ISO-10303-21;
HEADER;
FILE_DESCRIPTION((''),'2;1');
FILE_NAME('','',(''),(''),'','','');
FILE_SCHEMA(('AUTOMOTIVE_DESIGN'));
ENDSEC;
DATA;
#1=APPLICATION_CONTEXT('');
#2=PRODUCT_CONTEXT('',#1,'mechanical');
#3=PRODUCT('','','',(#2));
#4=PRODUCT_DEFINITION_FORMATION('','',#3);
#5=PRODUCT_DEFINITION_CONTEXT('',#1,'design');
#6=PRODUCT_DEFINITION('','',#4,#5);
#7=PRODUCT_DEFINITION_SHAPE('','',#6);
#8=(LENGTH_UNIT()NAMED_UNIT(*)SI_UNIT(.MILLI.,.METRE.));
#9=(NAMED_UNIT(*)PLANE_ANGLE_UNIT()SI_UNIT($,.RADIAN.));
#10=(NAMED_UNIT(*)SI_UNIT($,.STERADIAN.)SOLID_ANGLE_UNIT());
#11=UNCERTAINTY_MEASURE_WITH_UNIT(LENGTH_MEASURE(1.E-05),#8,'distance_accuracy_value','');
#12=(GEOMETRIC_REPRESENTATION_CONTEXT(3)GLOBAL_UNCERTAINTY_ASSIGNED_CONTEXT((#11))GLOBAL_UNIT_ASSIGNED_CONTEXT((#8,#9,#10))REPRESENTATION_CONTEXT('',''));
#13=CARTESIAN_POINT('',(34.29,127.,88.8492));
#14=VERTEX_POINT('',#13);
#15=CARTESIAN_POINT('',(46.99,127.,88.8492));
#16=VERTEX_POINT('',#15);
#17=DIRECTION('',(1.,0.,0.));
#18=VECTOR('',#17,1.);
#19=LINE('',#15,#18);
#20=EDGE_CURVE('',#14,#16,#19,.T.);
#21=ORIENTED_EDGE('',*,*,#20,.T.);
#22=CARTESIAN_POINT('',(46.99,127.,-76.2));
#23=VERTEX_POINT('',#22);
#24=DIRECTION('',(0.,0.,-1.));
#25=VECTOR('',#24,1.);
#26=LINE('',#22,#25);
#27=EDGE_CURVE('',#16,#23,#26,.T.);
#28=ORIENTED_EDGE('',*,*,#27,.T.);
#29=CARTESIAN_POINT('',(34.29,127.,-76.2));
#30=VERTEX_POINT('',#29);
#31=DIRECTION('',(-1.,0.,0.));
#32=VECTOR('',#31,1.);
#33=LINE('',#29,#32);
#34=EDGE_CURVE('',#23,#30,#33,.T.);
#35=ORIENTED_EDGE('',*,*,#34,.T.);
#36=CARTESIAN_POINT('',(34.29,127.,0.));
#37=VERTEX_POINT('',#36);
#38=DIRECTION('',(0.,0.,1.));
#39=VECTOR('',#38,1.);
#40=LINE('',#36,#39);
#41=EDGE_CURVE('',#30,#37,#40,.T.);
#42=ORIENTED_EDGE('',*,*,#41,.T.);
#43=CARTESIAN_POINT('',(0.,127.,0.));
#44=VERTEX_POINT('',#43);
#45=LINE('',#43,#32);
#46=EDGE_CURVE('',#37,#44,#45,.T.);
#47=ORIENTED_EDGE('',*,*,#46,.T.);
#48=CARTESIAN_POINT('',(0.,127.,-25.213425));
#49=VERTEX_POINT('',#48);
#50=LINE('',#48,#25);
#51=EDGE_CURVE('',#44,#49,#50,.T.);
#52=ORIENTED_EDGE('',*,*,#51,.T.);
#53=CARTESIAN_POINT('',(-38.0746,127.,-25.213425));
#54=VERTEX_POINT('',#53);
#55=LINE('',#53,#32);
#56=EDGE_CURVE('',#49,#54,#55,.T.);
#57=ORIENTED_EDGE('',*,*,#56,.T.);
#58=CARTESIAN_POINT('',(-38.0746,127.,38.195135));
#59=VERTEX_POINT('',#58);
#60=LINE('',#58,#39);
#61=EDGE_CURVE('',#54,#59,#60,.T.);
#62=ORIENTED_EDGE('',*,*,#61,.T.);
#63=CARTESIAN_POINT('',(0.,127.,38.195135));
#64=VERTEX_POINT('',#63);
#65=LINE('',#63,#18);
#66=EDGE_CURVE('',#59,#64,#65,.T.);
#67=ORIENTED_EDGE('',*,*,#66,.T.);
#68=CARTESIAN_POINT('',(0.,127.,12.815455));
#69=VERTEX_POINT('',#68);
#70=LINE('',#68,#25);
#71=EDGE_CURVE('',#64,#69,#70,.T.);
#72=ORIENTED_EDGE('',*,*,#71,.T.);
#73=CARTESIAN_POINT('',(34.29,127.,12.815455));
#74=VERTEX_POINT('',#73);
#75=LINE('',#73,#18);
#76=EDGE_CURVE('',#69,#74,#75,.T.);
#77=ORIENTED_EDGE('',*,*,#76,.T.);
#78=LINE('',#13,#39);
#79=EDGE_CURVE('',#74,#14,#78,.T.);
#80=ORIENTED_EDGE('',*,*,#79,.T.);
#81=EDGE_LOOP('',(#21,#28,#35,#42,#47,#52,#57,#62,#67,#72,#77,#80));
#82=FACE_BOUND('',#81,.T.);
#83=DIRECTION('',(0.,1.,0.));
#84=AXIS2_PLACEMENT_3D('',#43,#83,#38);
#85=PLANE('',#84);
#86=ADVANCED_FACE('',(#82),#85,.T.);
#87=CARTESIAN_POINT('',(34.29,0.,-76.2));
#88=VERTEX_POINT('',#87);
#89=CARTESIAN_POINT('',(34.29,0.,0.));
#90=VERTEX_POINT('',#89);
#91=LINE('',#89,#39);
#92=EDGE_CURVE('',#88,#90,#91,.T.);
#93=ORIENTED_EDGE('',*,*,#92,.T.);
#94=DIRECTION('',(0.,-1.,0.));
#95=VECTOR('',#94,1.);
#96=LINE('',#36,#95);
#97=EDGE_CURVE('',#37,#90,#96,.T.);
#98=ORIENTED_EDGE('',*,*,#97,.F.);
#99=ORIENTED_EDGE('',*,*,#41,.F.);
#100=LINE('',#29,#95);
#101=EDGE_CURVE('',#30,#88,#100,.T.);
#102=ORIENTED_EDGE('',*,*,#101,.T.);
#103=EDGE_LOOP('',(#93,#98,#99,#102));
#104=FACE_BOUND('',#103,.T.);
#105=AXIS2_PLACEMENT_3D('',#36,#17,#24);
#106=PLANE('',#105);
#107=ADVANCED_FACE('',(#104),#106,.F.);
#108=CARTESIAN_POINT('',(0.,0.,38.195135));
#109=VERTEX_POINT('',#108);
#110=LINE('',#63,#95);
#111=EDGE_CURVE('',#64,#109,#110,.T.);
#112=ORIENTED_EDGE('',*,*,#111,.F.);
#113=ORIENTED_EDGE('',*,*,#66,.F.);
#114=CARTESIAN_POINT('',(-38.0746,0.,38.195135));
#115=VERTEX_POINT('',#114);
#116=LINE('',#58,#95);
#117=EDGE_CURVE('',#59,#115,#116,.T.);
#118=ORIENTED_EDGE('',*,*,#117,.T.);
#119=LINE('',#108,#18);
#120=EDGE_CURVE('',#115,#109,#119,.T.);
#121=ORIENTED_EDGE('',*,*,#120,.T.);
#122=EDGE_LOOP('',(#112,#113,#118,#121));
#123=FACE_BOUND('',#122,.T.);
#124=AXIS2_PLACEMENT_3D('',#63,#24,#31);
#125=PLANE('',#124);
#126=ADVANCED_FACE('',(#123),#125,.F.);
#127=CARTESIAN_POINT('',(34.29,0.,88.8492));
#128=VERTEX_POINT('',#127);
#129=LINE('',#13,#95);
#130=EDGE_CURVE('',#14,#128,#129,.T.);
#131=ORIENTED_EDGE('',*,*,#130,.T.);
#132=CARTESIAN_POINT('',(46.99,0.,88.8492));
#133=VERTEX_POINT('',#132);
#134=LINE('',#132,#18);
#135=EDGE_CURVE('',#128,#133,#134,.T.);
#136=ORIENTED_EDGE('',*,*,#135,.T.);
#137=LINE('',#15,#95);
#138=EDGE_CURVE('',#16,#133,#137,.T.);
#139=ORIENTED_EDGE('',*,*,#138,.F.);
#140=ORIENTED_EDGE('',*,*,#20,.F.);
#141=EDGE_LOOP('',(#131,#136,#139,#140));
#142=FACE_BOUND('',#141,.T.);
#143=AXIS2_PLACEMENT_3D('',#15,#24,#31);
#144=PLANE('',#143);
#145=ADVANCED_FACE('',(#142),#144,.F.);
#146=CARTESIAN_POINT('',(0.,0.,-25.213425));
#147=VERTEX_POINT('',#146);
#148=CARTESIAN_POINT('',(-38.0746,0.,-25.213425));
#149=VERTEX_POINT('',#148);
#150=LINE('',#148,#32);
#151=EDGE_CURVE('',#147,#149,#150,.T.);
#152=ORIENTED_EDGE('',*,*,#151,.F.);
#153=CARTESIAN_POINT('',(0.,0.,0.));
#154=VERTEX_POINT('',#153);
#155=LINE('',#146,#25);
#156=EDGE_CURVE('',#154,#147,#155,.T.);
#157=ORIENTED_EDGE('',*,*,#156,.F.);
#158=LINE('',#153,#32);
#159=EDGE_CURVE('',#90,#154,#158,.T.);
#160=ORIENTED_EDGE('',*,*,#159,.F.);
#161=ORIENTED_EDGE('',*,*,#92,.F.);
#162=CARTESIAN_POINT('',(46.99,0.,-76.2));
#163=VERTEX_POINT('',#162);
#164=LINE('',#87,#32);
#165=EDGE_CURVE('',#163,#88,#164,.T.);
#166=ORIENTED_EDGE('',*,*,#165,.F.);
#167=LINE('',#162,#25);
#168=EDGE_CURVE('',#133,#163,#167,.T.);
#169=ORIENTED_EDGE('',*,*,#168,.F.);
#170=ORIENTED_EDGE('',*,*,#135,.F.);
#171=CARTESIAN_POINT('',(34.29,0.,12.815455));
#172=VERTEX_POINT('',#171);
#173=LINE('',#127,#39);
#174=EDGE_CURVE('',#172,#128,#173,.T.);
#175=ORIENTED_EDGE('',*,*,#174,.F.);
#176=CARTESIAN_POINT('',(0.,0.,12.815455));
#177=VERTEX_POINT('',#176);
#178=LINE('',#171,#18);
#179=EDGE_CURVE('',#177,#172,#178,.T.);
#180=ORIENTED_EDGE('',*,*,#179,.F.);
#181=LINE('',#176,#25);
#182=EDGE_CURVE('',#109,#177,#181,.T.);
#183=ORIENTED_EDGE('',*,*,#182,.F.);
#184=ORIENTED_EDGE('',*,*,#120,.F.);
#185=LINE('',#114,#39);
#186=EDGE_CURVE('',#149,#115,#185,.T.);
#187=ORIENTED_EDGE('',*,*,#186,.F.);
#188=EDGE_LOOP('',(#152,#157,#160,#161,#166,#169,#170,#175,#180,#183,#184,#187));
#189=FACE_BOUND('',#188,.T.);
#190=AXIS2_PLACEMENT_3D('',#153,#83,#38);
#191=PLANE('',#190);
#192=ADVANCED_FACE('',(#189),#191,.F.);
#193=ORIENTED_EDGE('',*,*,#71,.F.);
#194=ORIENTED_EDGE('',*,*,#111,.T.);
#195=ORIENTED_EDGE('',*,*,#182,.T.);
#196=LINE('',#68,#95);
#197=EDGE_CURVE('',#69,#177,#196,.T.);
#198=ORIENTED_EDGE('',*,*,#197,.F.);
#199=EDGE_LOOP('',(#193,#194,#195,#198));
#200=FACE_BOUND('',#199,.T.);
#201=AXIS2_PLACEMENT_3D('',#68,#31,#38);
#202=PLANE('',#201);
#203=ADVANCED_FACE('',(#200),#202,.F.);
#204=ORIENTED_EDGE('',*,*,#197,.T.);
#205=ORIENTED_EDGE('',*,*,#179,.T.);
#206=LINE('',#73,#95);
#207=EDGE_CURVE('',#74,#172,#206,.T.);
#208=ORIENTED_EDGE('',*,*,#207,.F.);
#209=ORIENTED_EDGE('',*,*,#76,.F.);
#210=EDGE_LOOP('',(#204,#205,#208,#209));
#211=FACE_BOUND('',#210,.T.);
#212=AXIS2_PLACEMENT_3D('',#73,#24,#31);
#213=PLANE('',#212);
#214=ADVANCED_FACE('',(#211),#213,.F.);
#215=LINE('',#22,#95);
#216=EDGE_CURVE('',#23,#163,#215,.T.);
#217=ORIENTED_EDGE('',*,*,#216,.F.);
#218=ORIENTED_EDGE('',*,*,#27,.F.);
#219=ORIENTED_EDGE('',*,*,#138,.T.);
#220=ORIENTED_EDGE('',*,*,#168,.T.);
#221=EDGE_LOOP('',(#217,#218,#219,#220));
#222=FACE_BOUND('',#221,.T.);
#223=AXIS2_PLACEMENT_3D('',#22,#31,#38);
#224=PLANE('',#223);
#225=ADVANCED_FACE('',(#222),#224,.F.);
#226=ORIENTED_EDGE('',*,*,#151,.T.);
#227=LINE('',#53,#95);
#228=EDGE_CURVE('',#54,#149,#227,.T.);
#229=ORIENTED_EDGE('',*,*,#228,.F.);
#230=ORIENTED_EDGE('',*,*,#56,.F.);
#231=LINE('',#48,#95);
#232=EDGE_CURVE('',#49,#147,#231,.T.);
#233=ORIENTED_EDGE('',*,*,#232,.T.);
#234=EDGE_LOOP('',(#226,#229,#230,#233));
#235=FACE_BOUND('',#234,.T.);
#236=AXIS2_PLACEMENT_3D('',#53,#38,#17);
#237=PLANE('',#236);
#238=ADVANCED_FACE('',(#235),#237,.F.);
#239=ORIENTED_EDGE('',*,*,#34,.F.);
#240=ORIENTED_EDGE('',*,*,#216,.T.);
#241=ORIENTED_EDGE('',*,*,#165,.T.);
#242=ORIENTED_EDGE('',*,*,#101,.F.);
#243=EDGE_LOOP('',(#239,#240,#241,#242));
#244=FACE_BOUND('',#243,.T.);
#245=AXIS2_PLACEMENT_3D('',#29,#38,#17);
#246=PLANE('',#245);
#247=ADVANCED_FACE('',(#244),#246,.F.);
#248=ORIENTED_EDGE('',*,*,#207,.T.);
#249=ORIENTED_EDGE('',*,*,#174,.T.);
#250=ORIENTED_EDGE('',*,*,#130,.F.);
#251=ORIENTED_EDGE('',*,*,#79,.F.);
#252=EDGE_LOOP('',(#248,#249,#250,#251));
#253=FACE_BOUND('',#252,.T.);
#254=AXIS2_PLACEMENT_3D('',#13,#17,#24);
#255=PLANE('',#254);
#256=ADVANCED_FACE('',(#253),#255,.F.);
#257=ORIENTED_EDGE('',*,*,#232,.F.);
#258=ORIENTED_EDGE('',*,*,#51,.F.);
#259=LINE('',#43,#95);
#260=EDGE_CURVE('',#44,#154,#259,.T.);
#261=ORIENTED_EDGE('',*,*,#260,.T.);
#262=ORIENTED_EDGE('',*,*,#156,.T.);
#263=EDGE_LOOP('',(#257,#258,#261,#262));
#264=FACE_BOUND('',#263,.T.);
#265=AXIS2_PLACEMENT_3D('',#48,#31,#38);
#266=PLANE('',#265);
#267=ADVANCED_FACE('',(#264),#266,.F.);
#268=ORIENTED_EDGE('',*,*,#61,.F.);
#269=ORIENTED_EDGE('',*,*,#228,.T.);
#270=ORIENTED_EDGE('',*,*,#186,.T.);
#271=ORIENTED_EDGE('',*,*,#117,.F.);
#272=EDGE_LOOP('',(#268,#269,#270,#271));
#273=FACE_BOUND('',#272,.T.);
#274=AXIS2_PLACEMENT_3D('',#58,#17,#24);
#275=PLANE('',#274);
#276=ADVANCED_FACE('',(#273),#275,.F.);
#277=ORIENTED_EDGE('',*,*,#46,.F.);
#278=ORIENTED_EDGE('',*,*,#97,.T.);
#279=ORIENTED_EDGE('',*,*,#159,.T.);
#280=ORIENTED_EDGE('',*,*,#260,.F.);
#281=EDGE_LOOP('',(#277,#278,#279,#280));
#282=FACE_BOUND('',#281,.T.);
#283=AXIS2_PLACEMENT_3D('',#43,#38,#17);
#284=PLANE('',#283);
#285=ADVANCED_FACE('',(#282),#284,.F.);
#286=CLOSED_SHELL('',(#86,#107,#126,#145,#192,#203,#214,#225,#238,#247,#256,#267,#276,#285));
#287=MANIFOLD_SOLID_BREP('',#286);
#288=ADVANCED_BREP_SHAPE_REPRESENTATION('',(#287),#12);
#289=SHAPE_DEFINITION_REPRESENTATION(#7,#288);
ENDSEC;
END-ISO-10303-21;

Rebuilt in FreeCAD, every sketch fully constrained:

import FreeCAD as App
import Part
import Sketcher

V = App.Vector
Q = App.Units.Quantity


def add_polygon(sketch, points):
    """Adds a closed chain of lines whose ends are joined by coincident constraints."""
    first, n = sketch.GeometryCount, len(points)
    for a, b in zip(points, points[1:] + points[:1]):
        sketch.addGeometry(Part.LineSegment(App.Vector(*a, 0), App.Vector(*b, 0)), False)
    for i in range(n):
        sketch.addConstraint(Sketcher.Constraint("Coincident", first + i, 2, first + (i + 1) % n, 1))

doc = App.newDocument("Part")
body = doc.addObject("PartDesign::Body", "Body")

# Sketch on XZ plane
sketch1 = body.newObject("Sketcher::SketchObject", "Sketch")
sketch1.AttachmentSupport = (doc.getObject("XZ_Plane"), [""])
sketch1.MapMode = "FlatFace"
add_polygon(sketch1, [(0, 12.815455), (34.29, 12.815455), (34.29, 88.8492), (46.99, 88.8492), (46.99, -76.2), (34.29, -76.2), (34.29, 0), (0, 0), (0, -25.213425), (-38.0746, -25.213425), (-38.0746, 38.195135), (0, 38.195135)])  # lines 0-11
sketch1.addConstraint([
    Sketcher.Constraint("Horizontal", 0),
    Sketcher.Constraint("Vertical", 1),
    Sketcher.Constraint("Horizontal", 2),
    Sketcher.Constraint("Vertical", 3),
    Sketcher.Constraint("Horizontal", 4),
    Sketcher.Constraint("Vertical", 5),
    Sketcher.Constraint("Horizontal", 6),
    Sketcher.Constraint("Vertical", 7),
    Sketcher.Constraint("Horizontal", 8),
    Sketcher.Constraint("Vertical", 9),
    Sketcher.Constraint("Horizontal", 10),
    Sketcher.Constraint("Vertical", 11),
    Sketcher.Constraint("Coincident", 6, 2, -1, 1),
    Sketcher.Constraint("PointOnObject", 10, 2, -2),
    Sketcher.Constraint("Vertical", 1, 2, 4, 2),
    Sketcher.Constraint("DistanceY", 5, 1, 5, 2, Q("3 in")),
    Sketcher.Constraint("DistanceX", 2, 1, 2, 2, Q("0.5 in")),
    Sketcher.Constraint("DistanceX", 0, 1, 0, 2, Q("1.35 in")),
    Sketcher.Constraint("DistanceX", 8, 2, 8, 1, Q("1.499 in")),
    Sketcher.Constraint("DistanceY", 3, 2, 3, 1, Q("6.498 in")),
    Sketcher.Constraint("DistanceY", 9, 1, 9, 2, Q("2.4964 in")),
    Sketcher.Constraint("DistanceY", 11, 2, 11, 1, Q("0.9992 in")),
    Sketcher.Constraint("DistanceY", 1, 1, 1, 2, 76.033745),
])
pad1 = body.newObject("PartDesign::Pad", "Pad")
pad1.Profile = sketch1
pad1.Length = Q("5 in")
pad1.Reversed = True

doc.recompute()
